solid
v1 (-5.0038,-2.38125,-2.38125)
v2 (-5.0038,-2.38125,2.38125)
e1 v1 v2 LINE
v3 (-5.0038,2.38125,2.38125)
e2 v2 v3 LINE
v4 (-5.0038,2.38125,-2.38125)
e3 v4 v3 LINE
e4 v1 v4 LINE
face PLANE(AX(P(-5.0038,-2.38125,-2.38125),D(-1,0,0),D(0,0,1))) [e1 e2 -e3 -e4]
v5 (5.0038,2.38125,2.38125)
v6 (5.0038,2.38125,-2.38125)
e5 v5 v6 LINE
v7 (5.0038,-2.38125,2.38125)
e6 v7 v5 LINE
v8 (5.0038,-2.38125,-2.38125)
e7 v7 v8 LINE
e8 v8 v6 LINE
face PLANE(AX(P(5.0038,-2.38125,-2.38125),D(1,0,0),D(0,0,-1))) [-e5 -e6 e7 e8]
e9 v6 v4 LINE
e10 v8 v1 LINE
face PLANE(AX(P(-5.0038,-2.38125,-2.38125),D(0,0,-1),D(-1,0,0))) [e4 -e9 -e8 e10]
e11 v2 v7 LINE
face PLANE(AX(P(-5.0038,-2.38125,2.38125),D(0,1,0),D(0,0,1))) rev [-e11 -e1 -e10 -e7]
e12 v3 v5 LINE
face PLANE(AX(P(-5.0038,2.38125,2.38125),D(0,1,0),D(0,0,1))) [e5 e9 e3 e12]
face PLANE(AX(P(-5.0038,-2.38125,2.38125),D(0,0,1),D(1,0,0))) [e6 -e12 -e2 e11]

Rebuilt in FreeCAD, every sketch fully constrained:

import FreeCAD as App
import Part
import Sketcher
from FreeCAD import Vector
Q = App.Units.Quantity

doc = App.newDocument("Part")
body = doc.addObject("PartDesign::Body", "Body")

sketch1 = doc.addObject("Sketcher::SketchObject", "Sketch")
body.addObject(sketch1)
sketch1.AttachmentSupport = (doc.XZ_Plane, [""])
sketch1.MapMode = "FlatFace"
sketch1.addGeometry(Part.LineSegment(Vector(-5.0038, -2.38125, 0), Vector(-5.0038, 2.38125, 0)), False)
sketch1.addGeometry(Part.LineSegment(Vector(-5.0038, 2.38125, 0), Vector(5.0038, 2.38125, 0)), False)
sketch1.addGeometry(Part.LineSegment(Vector(5.0038, 2.38125, 0), Vector(5.0038, -2.38125, 0)), False)
sketch1.addGeometry(Part.LineSegment(Vector(5.0038, -2.38125, 0), Vector(-5.0038, -2.38125, 0)), False)
sketch1.addConstraint(Sketcher.Constraint("Coincident", 0, 2, 1, 1))
sketch1.addConstraint(Sketcher.Constraint("Coincident", 1, 2, 2, 1))
sketch1.addConstraint(Sketcher.Constraint("Coincident", 2, 2, 3, 1))
sketch1.addConstraint(Sketcher.Constraint("Coincident", 3, 2, 0, 1))
sketch1.addConstraint(Sketcher.Constraint("Vertical", 0))
sketch1.addConstraint(Sketcher.Constraint("Horizontal", 1))
sketch1.addConstraint(Sketcher.Constraint("Vertical", 2))
sketch1.addConstraint(Sketcher.Constraint("Horizontal", 3))
sketch1.addConstraint(Sketcher.Constraint("Symmetric", 0, 2, 2, 2, -1, 1))
sketch1.addConstraint(Sketcher.Constraint("DistanceX", 1, 1, 1, 2, Q("0.394 in")))
sketch1.addConstraint(Sketcher.Constraint("DistanceY", 0, 1, 0, 2, Q("0.1875 in")))
pad1 = doc.addObject("PartDesign::Pad", "Pad")
body.addObject(pad1)
pad1.Profile = sketch1
pad1.Type = "TwoLengths"
pad1.Length = Q("0.09375 in")
pad1.Length2 = Q("0.09375 in")
pad1.Reversed = True

doc.recompute()
